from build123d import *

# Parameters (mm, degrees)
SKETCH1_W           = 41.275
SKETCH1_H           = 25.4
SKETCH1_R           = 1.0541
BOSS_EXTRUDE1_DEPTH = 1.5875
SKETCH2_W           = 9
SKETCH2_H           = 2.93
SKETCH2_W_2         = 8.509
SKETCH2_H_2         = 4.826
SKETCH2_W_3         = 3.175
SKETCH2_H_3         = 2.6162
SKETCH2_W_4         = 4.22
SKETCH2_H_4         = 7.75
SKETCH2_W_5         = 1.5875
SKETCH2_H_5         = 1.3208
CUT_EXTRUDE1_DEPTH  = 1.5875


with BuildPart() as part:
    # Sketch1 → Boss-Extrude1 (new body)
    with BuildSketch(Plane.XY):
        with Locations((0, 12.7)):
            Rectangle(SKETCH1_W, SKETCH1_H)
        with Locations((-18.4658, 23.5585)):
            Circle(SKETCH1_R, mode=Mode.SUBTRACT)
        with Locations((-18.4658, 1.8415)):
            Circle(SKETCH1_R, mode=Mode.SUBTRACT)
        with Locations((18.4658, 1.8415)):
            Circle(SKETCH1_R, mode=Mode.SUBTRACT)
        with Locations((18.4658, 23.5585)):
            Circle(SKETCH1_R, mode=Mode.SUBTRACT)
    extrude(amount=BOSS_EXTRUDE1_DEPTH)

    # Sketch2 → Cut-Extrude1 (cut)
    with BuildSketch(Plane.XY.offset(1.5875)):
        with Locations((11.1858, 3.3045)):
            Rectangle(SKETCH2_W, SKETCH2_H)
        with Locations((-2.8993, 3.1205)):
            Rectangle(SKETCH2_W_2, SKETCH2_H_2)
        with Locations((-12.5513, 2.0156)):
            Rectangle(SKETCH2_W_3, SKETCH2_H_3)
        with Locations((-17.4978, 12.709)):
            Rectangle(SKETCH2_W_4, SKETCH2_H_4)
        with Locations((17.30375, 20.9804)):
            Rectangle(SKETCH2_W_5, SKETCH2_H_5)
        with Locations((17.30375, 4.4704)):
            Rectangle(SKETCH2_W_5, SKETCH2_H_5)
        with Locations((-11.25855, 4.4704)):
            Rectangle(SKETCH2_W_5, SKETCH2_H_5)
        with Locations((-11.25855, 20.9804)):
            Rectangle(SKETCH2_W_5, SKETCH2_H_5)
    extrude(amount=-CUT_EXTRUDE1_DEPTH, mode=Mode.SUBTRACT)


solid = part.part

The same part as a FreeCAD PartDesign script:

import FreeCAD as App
import Part
import Sketcher
Q = App.Units.Quantity

doc = App.newDocument("Part")
body = doc.addObject("PartDesign::Body", "Body")

sketch1 = doc.addObject("Sketcher::SketchObject", "Sketch")
body.addObject(sketch1)
sketch1.AttachmentSupport = (doc.XY_Plane, [""])
sketch1.MapMode = "FlatFace"
sketch1.addGeometry(Part.LineSegment(App.Vector(-20.6, 25.4, 0), App.Vector(-20.6, 0, 0)), False)
sketch1.addGeometry(Part.LineSegment(App.Vector(-20.6, 0, 0), App.Vector(20.6, 0, 0)), False)
sketch1.addGeometry(Part.LineSegment(App.Vector(20.6, 0, 0), App.Vector(20.6, 25.4, 0)), False)
sketch1.addGeometry(Part.LineSegment(App.Vector(20.6, 25.4, 0), App.Vector(-20.6, 25.4, 0)), False)
sketch1.addGeometry(Part.Circle(App.Vector(-18.5, 1.8, 0), App.Vector(0, 0, 1), 1.1), False)
sketch1.addGeometry(Part.Circle(App.Vector(18.5, 1.8, 0), App.Vector(0, 0, 1), 1.1), False)
sketch1.addGeometry(Part.Circle(App.Vector(-18.5, 23.6, 0), App.Vector(0, 0, 1), 1.1), False)
sketch1.addGeometry(Part.Circle(App.Vector(18.5, 23.6, 0), App.Vector(0, 0, 1), 1.1), False)
sketch1.addConstraint(Sketcher.Constraint("Coincident", 0, 2, 1, 1))
sketch1.addConstraint(Sketcher.Constraint("Coincident", 1, 2, 2, 1))
sketch1.addConstraint(Sketcher.Constraint("Coincident", 2, 2, 3, 1))
sketch1.addConstraint(Sketcher.Constraint("Coincident", 3, 2, 0, 1))
sketch1.addConstraint(Sketcher.Constraint("Vertical", 0))
sketch1.addConstraint(Sketcher.Constraint("Horizontal", 1))
sketch1.addConstraint(Sketcher.Constraint("Vertical", 2))
sketch1.addConstraint(Sketcher.Constraint("Horizontal", 3))
sketch1.addConstraint(Sketcher.Constraint("Equal", 4, 5))
sketch1.addConstraint(Sketcher.Constraint("Equal", 5, 6))
sketch1.addConstraint(Sketcher.Constraint("Equal", 6, 7))
sketch1.addConstraint(Sketcher.Constraint("Symmetric", 0, 2, 1, 2, -1, 1))
sketch1.addConstraint(Sketcher.Constraint("Symmetric", 4, 3, 5, 3, -2))
sketch1.addConstraint(Sketcher.Constraint("Symmetric", 6, 3, 7, 3, -2))
sketch1.addConstraint(Sketcher.Constraint("Vertical", 4, 3, 6, 3))
sketch1.addConstraint(Sketcher.Constraint("DistanceY", 0, 2, 0, 1, Q("1 in")))
sketch1.addConstraint(Sketcher.Constraint("Diameter", 4, Q("0.083 in")))
sketch1.addConstraint(Sketcher.Constraint("DistanceX", 1, 1, 1, 2, Q("1.625 in")))
sketch1.addConstraint(Sketcher.Constraint("DistanceX", 4, 3, -1, 1, Q("0.727 in")))
sketch1.addConstraint(Sketcher.Constraint("DistanceY", 4, 3, 6, 3, Q("0.855 in")))
sketch1.addConstraint(Sketcher.Constraint("DistanceY", -1, 1, 4, 3, Q("0.0725 in")))
pad1 = doc.addObject("PartDesign::Pad", "Pad")
body.addObject(pad1)
pad1.Profile = sketch1
pad1.Length = Q("0.0625 in")

sketch2 = doc.addObject("Sketcher::SketchObject", "Sketch001")
body.addObject(sketch2)
sketch2.AttachmentSupport = (doc.XY_Plane, [""])
sketch2.MapMode = "FlatFace"
sketch2.AttachmentOffset = App.Placement(App.Vector(0, 0, 0.0625 * 25.4), App.Rotation())
sketch2.addGeometry(Part.LineSegment(App.Vector(6.7, 4.8, 0), App.Vector(6.7, 1.8, 0)), False)
sketch2.addGeometry(Part.LineSegment(App.Vector(6.7, 1.8, 0), App.Vector(15.7, 1.8, 0)), False)
sketch2.addGeometry(Part.LineSegment(App.Vector(15.7, 1.8, 0), App.Vector(15.7, 4.8, 0)), False)
sketch2.addGeometry(Part.LineSegment(App.Vector(15.7, 4.8, 0), App.Vector(6.7, 4.8, 0)), False)
sketch2.addGeometry(Part.LineSegment(App.Vector(-7.2, 5.5, 0), App.Vector(-7.2, 0.7, 0)), False)
sketch2.addGeometry(Part.LineSegment(App.Vector(-7.2, 0.7, 0), App.Vector(1.4, 0.7, 0)), False)
sketch2.addGeometry(Part.LineSegment(App.Vector(1.4, 0.7, 0), App.Vector(1.4, 5.5, 0)), False)
sketch2.addGeometry(Part.LineSegment(App.Vector(1.4, 5.5, 0), App.Vector(-7.2, 5.5, 0)), False)
sketch2.addGeometry(Part.LineSegment(App.Vector(-14.1, 3.3, 0), App.Vector(-14.1, 0.7, 0)), False)
sketch2.addGeometry(Part.LineSegment(App.Vector(-14.1, 0.7, 0), App.Vector(-11, 0.7, 0)), False)
sketch2.addGeometry(Part.LineSegment(App.Vector(-11, 0.7, 0), App.Vector(-11, 3.3, 0)), False)
sketch2.addGeometry(Part.LineSegment(App.Vector(-11, 3.3, 0), App.Vector(-14.1, 3.3, 0)), False)
sketch2.addGeometry(Part.LineSegment(App.Vector(-19.6, 16.6, 0), App.Vector(-19.6, 8.8, 0)), False)
sketch2.addGeometry(Part.LineSegment(App.Vector(-19.6, 8.8, 0), App.Vector(-15.4, 8.8, 0)), False)
sketch2.addGeometry(Part.LineSegment(App.Vector(-15.4, 8.8, 0), App.Vector(-15.4, 16.6, 0)), False)
sketch2.addGeometry(Part.LineSegment(App.Vector(-15.4, 16.6, 0), App.Vector(-19.6, 16.6, 0)), False)
sketch2.addGeometry(Part.LineSegment(App.Vector(16.5, 21.6, 0), App.Vector(16.5, 20.3, 0)), False)
sketch2.addGeometry(Part.LineSegment(App.Vector(16.5, 20.3, 0), App.Vector(18.1, 20.3, 0)), False)
sketch2.addGeometry(Part.LineSegment(App.Vector(18.1, 20.3, 0), App.Vector(18.1, 21.6, 0)), False)
sketch2.addGeometry(Part.LineSegment(App.Vector(18.1, 21.6, 0), App.Vector(16.5, 21.6, 0)), False)
sketch2.addGeometry(Part.LineSegment(App.Vector(16.5, 5.1, 0), App.Vector(16.5, 3.8, 0)), False)
sketch2.addGeometry(Part.LineSegment(App.Vector(16.5, 3.8, 0), App.Vector(18.1, 3.8, 0)), False)
sketch2.addGeometry(Part.LineSegment(App.Vector(18.1, 3.8, 0), App.Vector(18.1, 5.1, 0)), False)
sketch2.addGeometry(Part.LineSegment(App.Vector(18.1, 5.1, 0), App.Vector(16.5, 5.1, 0)), False)
sketch2.addGeometry(Part.LineSegment(App.Vector(-12.1, 5.1, 0), App.Vector(-12.1, 3.8, 0)), False)
sketch2.addGeometry(Part.LineSegment(App.Vector(-12.1, 3.8, 0), App.Vector(-10.5, 3.8, 0)), False)
sketch2.addGeometry(Part.LineSegment(App.Vector(-10.5, 3.8, 0), App.Vector(-10.5, 5.1, 0)), False)
sketch2.addGeometry(Part.LineSegment(App.Vector(-10.5, 5.1, 0), App.Vector(-12.1, 5.1, 0)), False)
sketch2.addGeometry(Part.LineSegment(App.Vector(-12.1, 21.6, 0), App.Vector(-12.1, 20.3, 0)), False)
sketch2.addGeometry(Part.LineSegment(App.Vector(-12.1, 20.3, 0), App.Vector(-10.5, 20.3, 0)), False)
sketch2.addGeometry(Part.LineSegment(App.Vector(-10.5, 20.3, 0), App.Vector(-10.5, 21.6, 0)), False)
sketch2.addGeometry(Part.LineSegment(App.Vector(-10.5, 21.6, 0), App.Vector(-12.1, 21.6, 0)), False)
sketch2.addConstraint(Sketcher.Constraint("Coincident", 0, 2, 1, 1))
sketch2.addConstraint(Sketcher.Constraint("Coincident", 1, 2, 2, 1))
sketch2.addConstraint(Sketcher.Constraint("Coincident", 2, 2, 3, 1))
sketch2.addConstraint(Sketcher.Constraint("Coincident", 3, 2, 0, 1))
sketch2.addConstraint(Sketcher.Constraint("Coincident", 4, 2, 5, 1))
sketch2.addConstraint(Sketcher.Constraint("Coincident", 5, 2, 6, 1))
sketch2.addConstraint(Sketcher.Constraint("Coincident", 6, 2, 7, 1))
sketch2.addConstraint(Sketcher.Constraint("Coincident", 7, 2, 4, 1))
sketch2.addConstraint(Sketcher.Constraint("Coincident", 8, 2, 9, 1))
sketch2.addConstraint(Sketcher.Constraint("Coincident", 9, 2, 10, 1))
sketch2.addConstraint(Sketcher.Constraint("Coincident", 10, 2, 11, 1))
sketch2.addConstraint(Sketcher.Constraint("Coincident", 11, 2, 8, 1))
sketch2.addConstraint(Sketcher.Constraint("Coincident", 12, 2, 13, 1))
sketch2.addConstraint(Sketcher.Constraint("Coincident", 13, 2, 14, 1))
sketch2.addConstraint(Sketcher.Constraint("Coincident", 14, 2, 15, 1))
sketch2.addConstraint(Sketcher.Constraint("Coincident", 15, 2, 12, 1))
sketch2.addConstraint(Sketcher.Constraint("Coincident", 16, 2, 17, 1))
sketch2.addConstraint(Sketcher.Constraint("Coincident", 17, 2, 18, 1))
sketch2.addConstraint(Sketcher.Constraint("Coincident", 18, 2, 19, 1))
sketch2.addConstraint(Sketcher.Constraint("Coincident", 19, 2, 16, 1))
sketch2.addConstraint(Sketcher.Constraint("Coincident", 20, 2, 21, 1))
sketch2.addConstraint(Sketcher.Constraint("Coincident", 21, 2, 22, 1))
sketch2.addConstraint(Sketcher.Constraint("Coincident", 22, 2, 23, 1))
sketch2.addConstraint(Sketcher.Constraint("Coincident", 23, 2, 20, 1))
sketch2.addConstraint(Sketcher.Constraint("Coincident", 24, 2, 25, 1))
sketch2.addConstraint(Sketcher.Constraint("Coincident", 25, 2, 26, 1))
sketch2.addConstraint(Sketcher.Constraint("Coincident", 26, 2, 27, 1))
sketch2.addConstraint(Sketcher.Constraint("Coincident", 27, 2, 24, 1))
sketch2.addConstraint(Sketcher.Constraint("Coincident", 28, 2, 29, 1))
sketch2.addConstraint(Sketcher.Constraint("Coincident", 29, 2, 30, 1))
sketch2.addConstraint(Sketcher.Constraint("Coincident", 30, 2, 31, 1))
sketch2.addConstraint(Sketcher.Constraint("Coincident", 31, 2, 28, 1))
sketch2.addConstraint(Sketcher.Constraint("Vertical", 0))
sketch2.addConstraint(Sketcher.Constraint("Horizontal", 1))
sketch2.addConstraint(Sketcher.Constraint("Vertical", 2))
sketch2.addConstraint(Sketcher.Constraint("Horizontal", 3))
sketch2.addConstraint(Sketcher.Constraint("Vertical", 4))
sketch2.addConstraint(Sketcher.Constraint("Horizontal", 5))
sketch2.addConstraint(Sketcher.Constraint("Vertical", 6))
sketch2.addConstraint(Sketcher.Constraint("Horizontal", 7))
sketch2.addConstraint(Sketcher.Constraint("Vertical", 8))
sketch2.addConstraint(Sketcher.Constraint("Horizontal", 9))
sketch2.addConstraint(Sketcher.Constraint("Vertical", 10))
sketch2.addConstraint(Sketcher.Constraint("Horizontal", 11))
sketch2.addConstraint(Sketcher.Constraint("Vertical", 12))
sketch2.addConstraint(Sketcher.Constraint("Horizontal", 13))
sketch2.addConstraint(Sketcher.Constraint("Vertical", 14))
sketch2.addConstraint(Sketcher.Constraint("Horizontal", 15))
sketch2.addConstraint(Sketcher.Constraint("Vertical", 16))
sketch2.addConstraint(Sketcher.Constraint("Horizontal", 17))
sketch2.addConstraint(Sketcher.Constraint("Vertical", 18))
sketch2.addConstraint(Sketcher.Constraint("Horizontal", 19))
sketch2.addConstraint(Sketcher.Constraint("Vertical", 20))
sketch2.addConstraint(Sketcher.Constraint("Horizontal", 21))
sketch2.addConstraint(Sketcher.Constraint("Vertical", 22))
sketch2.addConstraint(Sketcher.Constraint("Horizontal", 23))
sketch2.addConstraint(Sketcher.Constraint("Vertical", 24))
sketch2.addConstraint(Sketcher.Constraint("Horizontal", 25))
sketch2.addConstraint(Sketcher.Constraint("Vertical", 26))
sketch2.addConstraint(Sketcher.Constraint("Horizontal", 27))
sketch2.addConstraint(Sketcher.Constraint("Vertical", 28))
sketch2.addConstraint(Sketcher.Constraint("Horizontal", 29))
sketch2.addConstraint(Sketcher.Constraint("Vertical", 30))
sketch2.addConstraint(Sketcher.Constraint("Horizontal", 31))
sketch2.addConstraint(Sketcher.Constraint("Horizontal", 5, 2, 8, 2))
sketch2.addConstraint(Sketcher.Constraint("Horizontal", 21, 2, 24, 2))
sketch2.addConstraint(Sketcher.Constraint("Horizontal", 23, 2, 26, 2))
sketch2.addConstraint(Sketcher.Constraint("Horizontal", 17, 2, 28, 2))
sketch2.addConstraint(Sketcher.Constraint("Horizontal", 19, 2, 30, 2))
sketch2.addConstraint(Sketcher.Constraint("Vertical", 19, 2, 20, 2))
sketch2.addConstraint(Sketcher.Constraint("Vertical", 18, 2, 21, 2))
sketch2.addConstraint(Sketcher.Constraint("Vertical", 27, 2, 28, 2))
sketch2.addConstraint(Sketcher.Constraint("Vertical", 26, 2, 29, 2))
sketch2.addConstraint(Sketcher.Constraint("Equal", 23, 25))
sketch2.addConstraint(Sketcher.Constraint("Equal", 18, 20))
sketch2.addConstraint(Sketcher.Constraint("DistanceY", 4, 2, 4, 1, Q("0.19 in")))
sketch2.addConstraint(Sketcher.Constraint("DistanceY", -1, 1, 16, 2, Q("0.8 in")))
sketch2.addConstraint(Sketcher.Constraint("DistanceX", 5, 1, 5, 2, Q("0.335 in")))
sketch2.addConstraint(Sketcher.Constraint("DistanceX", 9, 1, 9, 2, Q("0.125 in")))
sketch2.addConstraint(Sketcher.Constraint("DistanceX", 17, 1, 17, 2, Q("0.0625 in")))
sketch2.addConstraint(Sketcher.Constraint("DistanceY", 8, 2, 8, 1, Q("0.103 in")))
sketch2.addConstraint(Sketcher.Constraint("DistanceY", 16, 2, 16, 1, Q("0.052 in")))
sketch2.addConstraint(Sketcher.Constraint("DistanceX", -1, 1, 16, 2, Q("0.65 in")))
sketch2.addConstraint(Sketcher.Constraint("DistanceY", -1, 1, 20, 2, Q("0.15 in")))
sketch2.addConstraint(Sketcher.Constraint("DistanceX", 8, 2, 5, 2, Q("0.61 in")))
sketch2.addConstraint(Sketcher.Constraint("DistanceX", 25, 2, -1, 1, Q("0.412 in")))
sketch2.addConstraint(Sketcher.Constraint("DistanceX", 1, 1, 1, 2, Q("9 mm")))
sketch2.addConstraint(Sketcher.Constraint("DistanceX", 13, 1, 13, 2, Q("4.22 mm")))
sketch2.addConstraint(Sketcher.Constraint("DistanceY", 0, 2, 0, 1, Q("2.93 mm")))
sketch2.addConstraint(Sketcher.Constraint("DistanceY", 12, 2, 12, 1, Q("7.75 mm")))
sketch2.addConstraint(Sketcher.Constraint("DistanceX", -1, 1, 0, 2, Q("6.6858 mm")))
sketch2.addConstraint(Sketcher.Constraint("DistanceY", -1, 1, 0, 2, Q("1.8395 mm")))
sketch2.addConstraint(Sketcher.Constraint("DistanceX", 4, 2, -1, 1, Q("7.1538 mm")))
sketch2.addConstraint(Sketcher.Constraint("DistanceY", -1, 1, 4, 2, Q("0.7075 mm")))
sketch2.addConstraint(Sketcher.Constraint("DistanceX", 12, 2, -1, 1, Q("19.6078 mm")))
sketch2.addConstraint(Sketcher.Constraint("DistanceY", -1, 1, 12, 2, Q("8.834 mm")))
pocket1 = doc.addObject("PartDesign::Pocket", "Pocket")
body.addObject(pocket1)
pocket1.Profile = sketch2
pocket1.Length = Q("0.0625 in")

doc.recompute()
